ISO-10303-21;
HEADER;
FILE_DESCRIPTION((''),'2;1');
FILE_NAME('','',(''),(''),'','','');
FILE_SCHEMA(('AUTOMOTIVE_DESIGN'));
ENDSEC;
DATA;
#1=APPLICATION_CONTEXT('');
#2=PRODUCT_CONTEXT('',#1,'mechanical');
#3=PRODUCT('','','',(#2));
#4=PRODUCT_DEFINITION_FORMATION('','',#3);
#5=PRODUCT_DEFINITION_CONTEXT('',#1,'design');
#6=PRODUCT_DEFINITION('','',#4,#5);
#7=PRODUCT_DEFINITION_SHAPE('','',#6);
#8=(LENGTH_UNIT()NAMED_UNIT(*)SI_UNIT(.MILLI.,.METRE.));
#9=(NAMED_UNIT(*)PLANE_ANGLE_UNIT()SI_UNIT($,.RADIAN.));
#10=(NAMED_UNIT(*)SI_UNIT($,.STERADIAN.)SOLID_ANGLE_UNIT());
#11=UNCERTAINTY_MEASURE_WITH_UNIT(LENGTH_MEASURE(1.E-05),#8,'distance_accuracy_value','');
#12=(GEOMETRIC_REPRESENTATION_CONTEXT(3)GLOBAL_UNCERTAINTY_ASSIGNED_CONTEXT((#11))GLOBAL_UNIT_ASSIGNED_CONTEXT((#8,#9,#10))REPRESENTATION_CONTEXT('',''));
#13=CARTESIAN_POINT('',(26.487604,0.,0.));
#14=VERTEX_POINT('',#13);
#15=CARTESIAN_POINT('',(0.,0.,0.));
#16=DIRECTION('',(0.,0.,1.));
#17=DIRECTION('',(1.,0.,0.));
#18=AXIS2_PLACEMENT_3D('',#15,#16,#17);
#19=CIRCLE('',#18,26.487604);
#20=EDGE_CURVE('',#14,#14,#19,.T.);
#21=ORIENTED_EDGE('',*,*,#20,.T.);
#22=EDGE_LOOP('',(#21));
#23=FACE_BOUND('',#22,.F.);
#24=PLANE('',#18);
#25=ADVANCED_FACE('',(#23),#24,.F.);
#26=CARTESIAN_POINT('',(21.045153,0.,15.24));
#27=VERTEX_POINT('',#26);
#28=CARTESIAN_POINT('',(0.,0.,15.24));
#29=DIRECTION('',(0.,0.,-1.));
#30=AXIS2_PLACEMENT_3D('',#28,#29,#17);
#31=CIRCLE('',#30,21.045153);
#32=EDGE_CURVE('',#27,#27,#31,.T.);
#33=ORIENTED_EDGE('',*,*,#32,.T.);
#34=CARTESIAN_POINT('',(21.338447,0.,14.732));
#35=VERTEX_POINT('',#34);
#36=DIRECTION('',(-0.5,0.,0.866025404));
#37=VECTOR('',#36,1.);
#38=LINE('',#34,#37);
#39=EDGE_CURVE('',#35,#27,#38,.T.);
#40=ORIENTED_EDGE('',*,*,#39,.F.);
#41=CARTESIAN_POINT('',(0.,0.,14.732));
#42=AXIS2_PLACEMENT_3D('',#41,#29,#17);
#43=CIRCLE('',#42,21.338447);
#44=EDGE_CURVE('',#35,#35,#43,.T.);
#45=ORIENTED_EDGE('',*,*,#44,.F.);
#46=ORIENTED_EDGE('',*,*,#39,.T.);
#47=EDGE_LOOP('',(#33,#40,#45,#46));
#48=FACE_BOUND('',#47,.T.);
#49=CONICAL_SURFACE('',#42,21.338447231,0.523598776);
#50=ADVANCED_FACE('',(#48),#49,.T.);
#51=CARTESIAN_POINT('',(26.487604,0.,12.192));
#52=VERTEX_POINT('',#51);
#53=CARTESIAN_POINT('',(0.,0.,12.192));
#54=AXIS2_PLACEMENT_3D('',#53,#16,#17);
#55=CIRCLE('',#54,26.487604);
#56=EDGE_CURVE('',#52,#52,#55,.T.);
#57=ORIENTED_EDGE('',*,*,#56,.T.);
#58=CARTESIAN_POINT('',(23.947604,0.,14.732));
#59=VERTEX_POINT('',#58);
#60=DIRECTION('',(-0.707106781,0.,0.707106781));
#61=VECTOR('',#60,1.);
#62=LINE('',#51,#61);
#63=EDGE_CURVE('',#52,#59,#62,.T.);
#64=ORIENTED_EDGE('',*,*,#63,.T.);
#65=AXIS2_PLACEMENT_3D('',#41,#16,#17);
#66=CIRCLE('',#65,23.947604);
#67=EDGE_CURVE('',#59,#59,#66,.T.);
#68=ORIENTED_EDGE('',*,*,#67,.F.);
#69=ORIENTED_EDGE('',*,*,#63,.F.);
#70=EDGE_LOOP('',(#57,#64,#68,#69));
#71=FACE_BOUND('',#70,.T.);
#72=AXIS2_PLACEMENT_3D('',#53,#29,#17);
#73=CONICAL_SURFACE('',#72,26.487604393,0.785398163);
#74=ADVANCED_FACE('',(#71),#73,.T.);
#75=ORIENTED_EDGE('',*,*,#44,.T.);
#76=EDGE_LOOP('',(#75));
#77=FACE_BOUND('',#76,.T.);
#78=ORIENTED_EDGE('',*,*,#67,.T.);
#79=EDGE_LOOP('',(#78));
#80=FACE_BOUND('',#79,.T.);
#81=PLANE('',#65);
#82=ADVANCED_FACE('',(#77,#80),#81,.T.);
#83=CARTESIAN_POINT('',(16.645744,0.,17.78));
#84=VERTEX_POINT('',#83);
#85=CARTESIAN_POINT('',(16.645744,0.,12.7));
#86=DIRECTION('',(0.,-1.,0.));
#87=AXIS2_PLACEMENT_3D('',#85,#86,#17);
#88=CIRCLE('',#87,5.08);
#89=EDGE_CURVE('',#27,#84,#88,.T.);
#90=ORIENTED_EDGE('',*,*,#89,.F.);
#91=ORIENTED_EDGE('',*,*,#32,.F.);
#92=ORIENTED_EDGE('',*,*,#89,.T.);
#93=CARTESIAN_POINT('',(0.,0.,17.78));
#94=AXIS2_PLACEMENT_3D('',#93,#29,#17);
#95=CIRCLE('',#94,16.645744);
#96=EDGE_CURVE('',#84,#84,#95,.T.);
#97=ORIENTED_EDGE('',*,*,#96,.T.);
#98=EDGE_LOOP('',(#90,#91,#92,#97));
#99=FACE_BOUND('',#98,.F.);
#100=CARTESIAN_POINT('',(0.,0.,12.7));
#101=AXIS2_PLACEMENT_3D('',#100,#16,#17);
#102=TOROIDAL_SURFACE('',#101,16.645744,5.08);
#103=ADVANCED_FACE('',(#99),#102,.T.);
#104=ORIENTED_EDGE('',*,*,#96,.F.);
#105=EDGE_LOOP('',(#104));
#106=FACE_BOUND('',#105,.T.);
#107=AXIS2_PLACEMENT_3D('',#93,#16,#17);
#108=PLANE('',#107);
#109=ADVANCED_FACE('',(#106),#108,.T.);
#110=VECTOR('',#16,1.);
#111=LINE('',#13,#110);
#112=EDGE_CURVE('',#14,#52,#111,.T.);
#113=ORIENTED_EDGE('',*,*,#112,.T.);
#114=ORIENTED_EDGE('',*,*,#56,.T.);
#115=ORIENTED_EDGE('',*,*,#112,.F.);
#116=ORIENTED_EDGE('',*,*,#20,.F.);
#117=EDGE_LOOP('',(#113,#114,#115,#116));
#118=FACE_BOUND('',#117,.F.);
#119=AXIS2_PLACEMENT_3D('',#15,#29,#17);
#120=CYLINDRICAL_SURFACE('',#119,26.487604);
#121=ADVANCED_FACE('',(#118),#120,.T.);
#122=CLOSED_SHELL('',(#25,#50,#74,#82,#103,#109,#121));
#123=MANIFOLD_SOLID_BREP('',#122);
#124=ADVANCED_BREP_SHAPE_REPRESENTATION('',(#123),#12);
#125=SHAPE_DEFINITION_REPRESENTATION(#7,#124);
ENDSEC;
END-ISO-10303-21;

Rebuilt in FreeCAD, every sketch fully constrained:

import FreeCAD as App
import Part
import Sketcher
Q = App.Units.Quantity


def edges_at(feature, points):
    """Names of the edges that pass closest to the given points."""
    edges = feature.Shape.Edges
    near = lambda p: min(range(len(edges)), key=lambda i: edges[i].distToShape(Part.Vertex(*p))[0])
    return sorted({f"Edge{near(p) + 1}" for p in points})

doc = App.newDocument("Part")
body = doc.addObject("PartDesign::Body", "Body")

# Sketch on XY plane
sketch1 = body.newObject("Sketcher::SketchObject", "Sketch")
sketch1.AttachmentSupport = (doc.getObject("XY_Plane"), [""])
sketch1.MapMode = "FlatFace"
sketch1.addGeometry(Part.Circle(App.Vector(0, 0, 0), App.Vector(0, 0, 1), 26), False)
sketch1.addConstraint(Sketcher.Constraint("Coincident", 0, 3, -1, 1))
sketch1.addConstraint(Sketcher.Constraint("Diameter", 0, 52.975209))
pad1 = body.newObject("PartDesign::Pad", "Pad")
pad1.Profile = sketch1
pad1.Length = Q("0.58 in")
doc.recompute()

chamfer = body.newObject("PartDesign::Chamfer", "Chamfer")
chamfer.Base = (pad1, edges_at(pad1, [(-26.488, 0, 14.732)]))
chamfer.Size = Q("0.1 in")

# Sketch on XY plane
sketch2 = body.newObject("Sketcher::SketchObject", "Sketch001")
sketch2.AttachmentSupport = (doc.getObject("XY_Plane"), [""])
sketch2.MapMode = "FlatFace"
sketch2.AttachmentOffset = App.Placement(App.Vector(0, 0, 0.58 * 25.4), App.Rotation())
sketch2.addGeometry(Part.Circle(App.Vector(0, 0, 0), App.Vector(0, 0, 1), 21), False)
sketch2.addConstraint(Sketcher.Constraint("Coincident", 0, 3, -1, 1))
sketch2.addConstraint(Sketcher.Constraint("Diameter", 0, 42.676894))
pad2 = body.newObject("PartDesign::Pad", "Pad001")
pad2.Profile = sketch2
pad2.Length = Q("0.12 in")
pad2.TaperAngle = -30
doc.recompute()

fillet = body.newObject("PartDesign::Fillet", "Fillet")
fillet.Base = (pad2, edges_at(pad2, [(-19.579, 0, 17.78)]))
fillet.Radius = Q("0.2 in")

doc.recompute()
